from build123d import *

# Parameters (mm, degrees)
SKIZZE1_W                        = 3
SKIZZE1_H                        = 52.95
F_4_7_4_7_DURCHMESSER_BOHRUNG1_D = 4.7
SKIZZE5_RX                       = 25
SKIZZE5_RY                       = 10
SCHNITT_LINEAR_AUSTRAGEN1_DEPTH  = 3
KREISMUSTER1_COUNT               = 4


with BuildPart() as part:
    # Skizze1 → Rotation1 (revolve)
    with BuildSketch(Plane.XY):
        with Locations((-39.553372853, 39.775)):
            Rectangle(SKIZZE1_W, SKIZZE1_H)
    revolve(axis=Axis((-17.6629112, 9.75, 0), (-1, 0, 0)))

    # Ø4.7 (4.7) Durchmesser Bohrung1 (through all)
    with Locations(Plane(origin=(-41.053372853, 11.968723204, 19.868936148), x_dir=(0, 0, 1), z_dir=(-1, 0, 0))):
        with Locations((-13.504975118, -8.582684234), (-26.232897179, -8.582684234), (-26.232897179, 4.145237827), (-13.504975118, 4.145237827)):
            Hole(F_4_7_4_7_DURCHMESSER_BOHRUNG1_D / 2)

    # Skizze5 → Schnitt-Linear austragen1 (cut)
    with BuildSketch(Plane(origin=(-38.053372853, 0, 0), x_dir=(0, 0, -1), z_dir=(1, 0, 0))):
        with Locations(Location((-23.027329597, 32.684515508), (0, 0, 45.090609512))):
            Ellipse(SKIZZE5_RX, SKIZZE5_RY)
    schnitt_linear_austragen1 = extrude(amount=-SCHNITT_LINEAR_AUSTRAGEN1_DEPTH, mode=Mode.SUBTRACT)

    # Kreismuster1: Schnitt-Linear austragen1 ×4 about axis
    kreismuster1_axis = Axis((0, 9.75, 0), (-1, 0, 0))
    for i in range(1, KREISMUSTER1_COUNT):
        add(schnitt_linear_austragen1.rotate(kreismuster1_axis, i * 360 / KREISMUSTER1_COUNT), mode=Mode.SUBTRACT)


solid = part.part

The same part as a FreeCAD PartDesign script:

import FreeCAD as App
import Part
import Sketcher
from FreeCAD import Vector
Q = App.Units.Quantity

doc = App.newDocument("Part")
body = doc.addObject("PartDesign::Body", "Body")

# Sketch on XY plane
sketch1 = doc.addObject("Sketcher::SketchObject", "Sketch")
body.addObject(sketch1)
sketch1.AttachmentSupport = (doc.XY_Plane, [""])
sketch1.MapMode = "FlatFace"
sketch1.addGeometry([
    Part.LineSegment(Vector(-41.1, 66.2, 0), Vector(-41.1, 13.3, 0)),
    Part.LineSegment(Vector(-41.1, 13.3, 0), Vector(-38.1, 13.3, 0)),
    Part.LineSegment(Vector(-38.1, 13.3, 0), Vector(-38.1, 66.2, 0)),
    Part.LineSegment(Vector(-38.1, 66.2, 0), Vector(-41.1, 66.2, 0)),
], False)
sketch1.addGeometry(Part.LineSegment(Vector(-38.1, 9.8, 0), Vector(-41.1, 9.8, 0)), True)  # axis
sketch1.addConstraint([
    Sketcher.Constraint("Coincident", 0, 2, 1, 1),
    Sketcher.Constraint("Coincident", 1, 2, 2, 1),
    Sketcher.Constraint("Coincident", 2, 2, 3, 1),
    Sketcher.Constraint("Coincident", 3, 2, 0, 1),
    Sketcher.Constraint("Vertical", 0),
    Sketcher.Constraint("Horizontal", 1),
    Sketcher.Constraint("Vertical", 2),
    Sketcher.Constraint("Horizontal", 3),
    Sketcher.Constraint("Horizontal", 4),
    Sketcher.Constraint("Vertical", 2, 2, 4, 1),
    Sketcher.Constraint("Vertical", 3, 2, 4, 2),
    Sketcher.Constraint("DistanceX", 1, 1, 1, 2, Q("3 mm")),
    Sketcher.Constraint("DistanceY", 0, 2, 0, 1, Q("52.95 mm")),
    Sketcher.Constraint("DistanceY", -1, 1, 0, 2, Q("13.3 mm")),
    Sketcher.Constraint("DistanceY", 4, 1, 2, 2, Q("56.5 mm")),
    Sketcher.Constraint("DistanceX", 0, 2, -1, 1, Q("41.053373 mm")),
])
revolution = doc.addObject("PartDesign::Revolution", "Revolution")
body.addObject(revolution)
revolution.Profile = sketch1
revolution.ReferenceAxis = (sketch1, ["Axis0"])
revolution.Angle = 360

# Sketch on YZ plane
sketch2 = doc.addObject("Sketcher::SketchObject", "Sketch001")
body.addObject(sketch2)
sketch2.AttachmentSupport = (doc.YZ_Plane, [""])
sketch2.MapMode = "FlatFace"
sketch2.AttachmentOffset = App.Placement(Vector(0, 0, -41.053373), App.Rotation())
sketch2.addGeometry([
    Part.Circle(Vector(3.4, 6.4, 0), Vector(0, 0, 1), 2.4),
    Part.Circle(Vector(3.4, -6.4, 0), Vector(0, 0, 1), 2.4),
    Part.Circle(Vector(16.1, -6.4, 0), Vector(0, 0, 1), 2.4),
    Part.Circle(Vector(16.1, 6.4, 0), Vector(0, 0, 1), 2.4),
], False)
sketch2.addConstraint([
    Sketcher.Constraint("Equal", 0, 1),
    Sketcher.Constraint("Equal", 1, 2),
    Sketcher.Constraint("Equal", 2, 3),
    Sketcher.Constraint("Symmetric", 0, 3, 1, 3, -1),
    Sketcher.Constraint("Symmetric", 2, 3, 3, 3, -1),
    Sketcher.Constraint("Horizontal", 1, 3, 2, 3),
    Sketcher.Constraint("Diameter", 0, Q("4.7 mm")),
    Sketcher.Constraint("DistanceX", -1, 1, 0, 3, Q("3.386039 mm")),
    Sketcher.Constraint("DistanceY", -1, 1, 0, 3, Q("6.363961 mm")),
    Sketcher.Constraint("DistanceX", -1, 1, 2, 3, Q("16.113961 mm")),
])
doc.recompute()
hole = doc.addObject("PartDesign::Hole", "Hole")
body.addObject(hole)
hole.Profile = sketch2
hole.ThreadType = "None"
hole.Diameter = 4.7
hole.DepthType = "ThroughAll"
hole.Reversed = True

# Sketch on YZ plane
sketch3 = doc.addObject("Sketcher::SketchObject", "Sketch002")
body.addObject(sketch3)
sketch3.AttachmentSupport = (doc.YZ_Plane, [""])
sketch3.MapMode = "FlatFace"
sketch3.AttachmentOffset = App.Placement(Vector(0, 0, -38.053373), App.Rotation())
sketch3.addGeometry(Part.Ellipse(Vector(50.390119, 5.377638, 0), Vector(39.744392, 30.109571, 0), Vector(32.684516, 23.02733, 0)), False)
sketch3.addConstraint(Sketcher.Constraint("Block", 0))
pocket1 = doc.addObject("PartDesign::Pocket", "Pocket")
body.addObject(pocket1)
pocket1.Profile = sketch3
pocket1.Length = 3
doc.recompute()

datumline = doc.addObject("PartDesign::Line", "DatumLine")
body.addObject(datumline)
datumline.Placement = App.Placement(Vector(0, 9.75, 0), App.Rotation(Vector(0, 0, 1), Vector(-1, 0, 0)))
polarpattern = doc.addObject("PartDesign::PolarPattern", "PolarPattern")
body.addObject(polarpattern)
polarpattern.Originals = [pocket1]
polarpattern.Axis = (datumline, [""])
polarpattern.Angle = 360
polarpattern.Occurrences = 4
body.Tip = polarpattern

doc.recompute()
